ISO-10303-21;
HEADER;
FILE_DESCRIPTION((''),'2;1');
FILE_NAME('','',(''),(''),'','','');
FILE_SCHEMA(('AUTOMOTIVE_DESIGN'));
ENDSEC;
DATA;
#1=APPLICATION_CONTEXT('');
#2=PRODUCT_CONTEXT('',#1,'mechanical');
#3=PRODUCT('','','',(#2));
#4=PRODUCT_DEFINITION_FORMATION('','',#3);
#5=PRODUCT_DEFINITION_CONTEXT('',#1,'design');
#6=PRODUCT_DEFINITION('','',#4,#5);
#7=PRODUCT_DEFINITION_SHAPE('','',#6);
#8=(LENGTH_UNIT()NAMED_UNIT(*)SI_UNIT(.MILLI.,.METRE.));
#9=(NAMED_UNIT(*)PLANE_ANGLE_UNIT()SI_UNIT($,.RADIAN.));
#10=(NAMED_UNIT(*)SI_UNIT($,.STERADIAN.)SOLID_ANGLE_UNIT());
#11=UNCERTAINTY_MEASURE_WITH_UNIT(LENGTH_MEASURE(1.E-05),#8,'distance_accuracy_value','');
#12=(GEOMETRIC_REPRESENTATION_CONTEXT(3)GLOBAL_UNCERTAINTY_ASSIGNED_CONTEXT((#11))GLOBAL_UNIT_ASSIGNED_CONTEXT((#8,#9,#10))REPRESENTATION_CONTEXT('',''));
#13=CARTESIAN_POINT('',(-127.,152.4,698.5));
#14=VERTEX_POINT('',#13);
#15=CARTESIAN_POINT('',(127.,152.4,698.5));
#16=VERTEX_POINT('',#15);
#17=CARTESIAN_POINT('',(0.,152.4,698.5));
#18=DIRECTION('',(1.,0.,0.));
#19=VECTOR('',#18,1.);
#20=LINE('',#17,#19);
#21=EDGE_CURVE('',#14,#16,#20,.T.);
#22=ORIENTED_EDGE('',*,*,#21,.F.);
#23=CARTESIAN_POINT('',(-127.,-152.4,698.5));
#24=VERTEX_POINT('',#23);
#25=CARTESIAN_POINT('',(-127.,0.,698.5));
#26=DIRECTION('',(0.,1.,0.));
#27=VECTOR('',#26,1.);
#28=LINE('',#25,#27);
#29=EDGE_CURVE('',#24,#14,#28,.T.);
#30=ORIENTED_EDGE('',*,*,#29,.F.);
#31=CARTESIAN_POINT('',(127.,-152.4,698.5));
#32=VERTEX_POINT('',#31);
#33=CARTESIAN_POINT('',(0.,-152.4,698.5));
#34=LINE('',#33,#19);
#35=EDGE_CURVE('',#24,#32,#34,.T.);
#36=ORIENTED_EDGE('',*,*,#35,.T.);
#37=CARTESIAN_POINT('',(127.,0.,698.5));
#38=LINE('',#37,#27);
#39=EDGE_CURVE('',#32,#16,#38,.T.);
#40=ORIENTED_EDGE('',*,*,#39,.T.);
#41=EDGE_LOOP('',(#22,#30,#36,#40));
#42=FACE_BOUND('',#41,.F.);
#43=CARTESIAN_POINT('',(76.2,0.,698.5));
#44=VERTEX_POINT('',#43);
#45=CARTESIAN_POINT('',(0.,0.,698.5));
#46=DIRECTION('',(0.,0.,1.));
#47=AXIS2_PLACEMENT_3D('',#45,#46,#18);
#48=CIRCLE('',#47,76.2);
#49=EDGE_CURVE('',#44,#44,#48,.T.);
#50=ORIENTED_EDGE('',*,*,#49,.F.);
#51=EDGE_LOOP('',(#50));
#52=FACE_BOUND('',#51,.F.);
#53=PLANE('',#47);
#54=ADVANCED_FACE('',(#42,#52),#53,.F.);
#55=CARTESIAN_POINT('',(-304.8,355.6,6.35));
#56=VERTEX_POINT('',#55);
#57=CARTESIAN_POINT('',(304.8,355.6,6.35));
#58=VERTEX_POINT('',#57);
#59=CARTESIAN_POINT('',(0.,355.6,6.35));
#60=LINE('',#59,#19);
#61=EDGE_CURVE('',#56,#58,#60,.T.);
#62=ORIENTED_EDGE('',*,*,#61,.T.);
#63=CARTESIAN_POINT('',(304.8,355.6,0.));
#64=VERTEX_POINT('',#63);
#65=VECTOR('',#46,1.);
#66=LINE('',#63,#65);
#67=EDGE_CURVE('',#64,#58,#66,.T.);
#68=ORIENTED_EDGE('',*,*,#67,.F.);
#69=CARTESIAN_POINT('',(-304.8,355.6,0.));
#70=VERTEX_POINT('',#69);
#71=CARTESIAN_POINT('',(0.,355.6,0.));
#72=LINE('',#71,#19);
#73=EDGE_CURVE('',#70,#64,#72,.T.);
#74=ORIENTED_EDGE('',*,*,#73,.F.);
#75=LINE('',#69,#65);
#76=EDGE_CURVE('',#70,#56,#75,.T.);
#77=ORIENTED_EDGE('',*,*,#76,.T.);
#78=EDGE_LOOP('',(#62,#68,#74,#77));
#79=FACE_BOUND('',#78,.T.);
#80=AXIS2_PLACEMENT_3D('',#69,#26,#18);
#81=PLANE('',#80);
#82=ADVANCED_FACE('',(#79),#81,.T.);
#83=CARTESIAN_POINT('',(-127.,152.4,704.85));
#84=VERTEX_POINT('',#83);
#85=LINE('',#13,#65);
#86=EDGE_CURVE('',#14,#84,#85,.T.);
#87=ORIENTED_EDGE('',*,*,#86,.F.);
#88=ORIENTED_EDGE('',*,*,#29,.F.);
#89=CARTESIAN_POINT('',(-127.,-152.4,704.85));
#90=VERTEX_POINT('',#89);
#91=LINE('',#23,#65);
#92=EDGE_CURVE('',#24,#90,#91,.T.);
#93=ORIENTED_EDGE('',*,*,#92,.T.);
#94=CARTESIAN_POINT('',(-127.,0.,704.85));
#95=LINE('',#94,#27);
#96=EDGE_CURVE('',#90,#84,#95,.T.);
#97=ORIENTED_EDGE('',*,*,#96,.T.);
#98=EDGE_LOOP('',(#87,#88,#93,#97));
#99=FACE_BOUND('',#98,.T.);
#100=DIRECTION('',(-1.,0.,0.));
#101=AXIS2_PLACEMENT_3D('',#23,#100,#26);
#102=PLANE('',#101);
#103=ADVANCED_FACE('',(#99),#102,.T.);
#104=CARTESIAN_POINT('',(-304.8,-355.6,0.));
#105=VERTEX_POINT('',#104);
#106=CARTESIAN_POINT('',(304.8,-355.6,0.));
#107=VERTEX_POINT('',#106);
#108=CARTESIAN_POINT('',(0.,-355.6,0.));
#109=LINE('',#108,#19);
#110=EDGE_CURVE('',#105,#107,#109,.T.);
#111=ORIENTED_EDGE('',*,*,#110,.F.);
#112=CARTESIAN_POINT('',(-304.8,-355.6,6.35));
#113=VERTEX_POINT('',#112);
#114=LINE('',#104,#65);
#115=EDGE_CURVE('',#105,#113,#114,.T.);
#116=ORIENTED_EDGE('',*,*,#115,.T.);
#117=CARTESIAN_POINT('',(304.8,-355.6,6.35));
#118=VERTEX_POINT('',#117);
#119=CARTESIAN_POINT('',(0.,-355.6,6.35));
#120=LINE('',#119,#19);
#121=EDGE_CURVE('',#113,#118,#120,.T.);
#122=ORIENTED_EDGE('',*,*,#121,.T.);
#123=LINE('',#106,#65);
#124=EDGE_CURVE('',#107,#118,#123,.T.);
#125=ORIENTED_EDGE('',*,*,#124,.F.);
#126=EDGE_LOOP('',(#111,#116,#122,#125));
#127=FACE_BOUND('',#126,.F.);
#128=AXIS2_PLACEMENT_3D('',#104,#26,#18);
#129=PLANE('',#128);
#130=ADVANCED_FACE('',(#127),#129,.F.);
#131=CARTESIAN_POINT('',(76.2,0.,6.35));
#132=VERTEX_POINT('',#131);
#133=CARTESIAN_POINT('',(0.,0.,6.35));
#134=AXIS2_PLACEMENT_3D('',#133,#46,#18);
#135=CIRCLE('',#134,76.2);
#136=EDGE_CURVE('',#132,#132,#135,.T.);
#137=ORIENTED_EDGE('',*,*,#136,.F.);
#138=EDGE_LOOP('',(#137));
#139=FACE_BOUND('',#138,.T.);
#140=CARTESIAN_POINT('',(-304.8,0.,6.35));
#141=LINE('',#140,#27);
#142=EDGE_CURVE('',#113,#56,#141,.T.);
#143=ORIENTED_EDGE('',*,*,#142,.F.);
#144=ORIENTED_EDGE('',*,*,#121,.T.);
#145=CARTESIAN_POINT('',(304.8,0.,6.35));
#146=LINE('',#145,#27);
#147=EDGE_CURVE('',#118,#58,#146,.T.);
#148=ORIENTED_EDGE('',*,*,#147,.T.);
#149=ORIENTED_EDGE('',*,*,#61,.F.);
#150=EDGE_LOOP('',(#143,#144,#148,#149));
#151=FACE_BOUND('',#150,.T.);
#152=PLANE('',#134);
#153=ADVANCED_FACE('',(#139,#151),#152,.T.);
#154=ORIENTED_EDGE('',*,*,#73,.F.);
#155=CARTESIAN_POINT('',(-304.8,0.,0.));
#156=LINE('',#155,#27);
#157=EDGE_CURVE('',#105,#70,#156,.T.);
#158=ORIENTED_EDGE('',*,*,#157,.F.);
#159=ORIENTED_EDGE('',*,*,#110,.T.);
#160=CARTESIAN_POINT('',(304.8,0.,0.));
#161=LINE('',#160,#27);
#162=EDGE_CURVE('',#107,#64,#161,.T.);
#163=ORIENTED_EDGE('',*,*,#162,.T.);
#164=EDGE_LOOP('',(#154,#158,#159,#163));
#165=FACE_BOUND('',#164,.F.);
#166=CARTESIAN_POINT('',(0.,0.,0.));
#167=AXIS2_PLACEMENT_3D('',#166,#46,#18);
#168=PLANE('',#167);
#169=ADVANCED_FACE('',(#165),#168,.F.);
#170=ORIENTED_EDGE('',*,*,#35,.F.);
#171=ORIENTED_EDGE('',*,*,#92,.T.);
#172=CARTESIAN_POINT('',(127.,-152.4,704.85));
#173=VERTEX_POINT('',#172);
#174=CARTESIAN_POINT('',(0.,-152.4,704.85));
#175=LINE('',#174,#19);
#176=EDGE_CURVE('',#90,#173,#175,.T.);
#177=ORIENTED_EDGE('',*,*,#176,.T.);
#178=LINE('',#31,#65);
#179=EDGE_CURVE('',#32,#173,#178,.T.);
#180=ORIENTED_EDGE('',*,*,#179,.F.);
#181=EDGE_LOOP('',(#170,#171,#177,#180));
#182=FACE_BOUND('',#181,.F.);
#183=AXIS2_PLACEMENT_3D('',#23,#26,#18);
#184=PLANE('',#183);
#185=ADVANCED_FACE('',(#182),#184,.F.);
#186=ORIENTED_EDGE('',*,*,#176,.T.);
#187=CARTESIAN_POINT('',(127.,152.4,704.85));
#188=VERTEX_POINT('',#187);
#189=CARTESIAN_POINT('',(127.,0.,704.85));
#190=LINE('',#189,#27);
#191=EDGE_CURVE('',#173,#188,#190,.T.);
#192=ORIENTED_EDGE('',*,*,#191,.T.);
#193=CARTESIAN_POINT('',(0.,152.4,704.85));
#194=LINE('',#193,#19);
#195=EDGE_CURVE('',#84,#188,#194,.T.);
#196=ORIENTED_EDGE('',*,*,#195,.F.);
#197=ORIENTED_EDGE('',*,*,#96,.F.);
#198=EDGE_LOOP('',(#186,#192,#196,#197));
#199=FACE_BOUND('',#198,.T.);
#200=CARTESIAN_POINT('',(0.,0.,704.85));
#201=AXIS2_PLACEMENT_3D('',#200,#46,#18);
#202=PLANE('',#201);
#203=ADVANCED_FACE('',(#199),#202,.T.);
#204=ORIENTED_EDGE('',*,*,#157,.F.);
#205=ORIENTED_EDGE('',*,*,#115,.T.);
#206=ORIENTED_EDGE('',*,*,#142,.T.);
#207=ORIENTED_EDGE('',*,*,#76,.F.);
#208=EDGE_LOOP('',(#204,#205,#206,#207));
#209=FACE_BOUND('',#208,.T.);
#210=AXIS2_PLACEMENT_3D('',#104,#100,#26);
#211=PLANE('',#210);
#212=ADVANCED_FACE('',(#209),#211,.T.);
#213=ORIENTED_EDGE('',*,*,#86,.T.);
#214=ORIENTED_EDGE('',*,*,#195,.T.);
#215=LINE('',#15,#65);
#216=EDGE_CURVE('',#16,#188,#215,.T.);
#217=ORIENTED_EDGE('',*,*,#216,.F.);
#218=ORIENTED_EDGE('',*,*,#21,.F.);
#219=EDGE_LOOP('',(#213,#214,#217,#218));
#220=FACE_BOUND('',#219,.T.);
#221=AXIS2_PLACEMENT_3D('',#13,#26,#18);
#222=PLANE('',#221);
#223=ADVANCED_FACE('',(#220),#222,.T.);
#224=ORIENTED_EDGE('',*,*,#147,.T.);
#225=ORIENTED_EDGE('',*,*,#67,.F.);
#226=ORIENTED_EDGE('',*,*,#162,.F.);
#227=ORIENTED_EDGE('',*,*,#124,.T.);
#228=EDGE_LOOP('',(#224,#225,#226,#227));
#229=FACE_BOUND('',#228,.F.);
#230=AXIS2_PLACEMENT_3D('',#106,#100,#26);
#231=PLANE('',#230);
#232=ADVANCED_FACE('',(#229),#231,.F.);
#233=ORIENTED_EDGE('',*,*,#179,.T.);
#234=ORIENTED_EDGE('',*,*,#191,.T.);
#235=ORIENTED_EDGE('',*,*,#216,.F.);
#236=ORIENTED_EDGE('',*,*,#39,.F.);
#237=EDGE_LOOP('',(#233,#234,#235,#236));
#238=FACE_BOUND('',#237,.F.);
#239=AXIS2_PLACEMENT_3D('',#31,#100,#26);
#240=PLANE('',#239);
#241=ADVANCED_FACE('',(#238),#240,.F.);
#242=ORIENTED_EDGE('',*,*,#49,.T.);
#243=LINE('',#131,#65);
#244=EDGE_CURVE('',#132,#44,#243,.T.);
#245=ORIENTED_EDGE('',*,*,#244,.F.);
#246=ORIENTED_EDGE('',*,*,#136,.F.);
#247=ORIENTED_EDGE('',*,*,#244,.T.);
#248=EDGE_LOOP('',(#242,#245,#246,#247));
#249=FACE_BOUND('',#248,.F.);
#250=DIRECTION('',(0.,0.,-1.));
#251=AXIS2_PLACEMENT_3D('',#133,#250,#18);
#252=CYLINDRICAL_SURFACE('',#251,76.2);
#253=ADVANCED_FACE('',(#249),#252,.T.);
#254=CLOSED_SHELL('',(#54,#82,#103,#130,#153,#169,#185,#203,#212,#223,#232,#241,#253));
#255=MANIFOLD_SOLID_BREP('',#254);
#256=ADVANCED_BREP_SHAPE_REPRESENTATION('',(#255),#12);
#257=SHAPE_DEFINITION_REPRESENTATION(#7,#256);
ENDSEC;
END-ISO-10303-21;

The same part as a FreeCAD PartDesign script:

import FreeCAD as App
import Part
import Sketcher
from FreeCAD import Vector
Q = App.Units.Quantity


def add_polygon(sketch, points):
    """Adds a closed chain of lines whose ends are joined by coincident constraints."""
    first, n = sketch.GeometryCount, len(points)
    for a, b in zip(points, points[1:] + points[:1]):
        sketch.addGeometry(Part.LineSegment(App.Vector(*a, 0), App.Vector(*b, 0)), False)
    for i in range(n):
        sketch.addConstraint(Sketcher.Constraint("Coincident", first + i, 2, first + (i + 1) % n, 1))

doc = App.newDocument("Part")
body = doc.addObject("PartDesign::Body", "Body")

# Sketch on XY plane
sketch1 = body.newObject("Sketcher::SketchObject", "Sketch")
sketch1.AttachmentSupport = (doc.getObject("XY_Plane"), [""])
sketch1.MapMode = "FlatFace"
add_polygon(sketch1, [(-305, 356), (-305, -356), (305, -356), (305, 356)])  # lines 0-3
sketch1.addConstraint([
    Sketcher.Constraint("Vertical", 0),
    Sketcher.Constraint("Horizontal", 1),
    Sketcher.Constraint("Vertical", 2),
    Sketcher.Constraint("Horizontal", 3),
    Sketcher.Constraint("Symmetric", 0, 2, 2, 2, -1, 1),
    Sketcher.Constraint("DistanceX", 1, 1, 1, 2, Q("24 in")),
    Sketcher.Constraint("DistanceY", 0, 2, 0, 1, Q("28 in")),
])
pad1 = body.newObject("PartDesign::Pad", "Pad")
pad1.Profile = sketch1
pad1.Length = Q("0.25 in")

# Sketch on XY plane
sketch2 = body.newObject("Sketcher::SketchObject", "Sketch001")
sketch2.AttachmentSupport = (doc.getObject("XY_Plane"), [""])
sketch2.MapMode = "FlatFace"
sketch2.AttachmentOffset = App.Placement(Vector(0, 0, 0.25 * 25.4), App.Rotation())
sketch2.addGeometry(Part.Circle(Vector(0, 0, 0), Vector(0, 0, 1), 76), False)
sketch2.addConstraint([
    Sketcher.Constraint("Coincident", 0, 3, -1, 1),
    Sketcher.Constraint("Diameter", 0, Q("6 in")),
])
pad2 = body.newObject("PartDesign::Pad", "Pad001")
pad2.Profile = sketch2
pad2.Length = Q("27.25 in")

# Sketch on XY plane
sketch3 = body.newObject("Sketcher::SketchObject", "Sketch002")
sketch3.AttachmentSupport = (doc.getObject("XY_Plane"), [""])
sketch3.MapMode = "FlatFace"
sketch3.AttachmentOffset = App.Placement(Vector(0, 0, 27.5 * 25.4), App.Rotation())
add_polygon(sketch3, [(-127, 152), (-127, -152), (127, -152), (127, 152)])  # lines 0-3
sketch3.addConstraint([
    Sketcher.Constraint("Vertical", 0),
    Sketcher.Constraint("Horizontal", 1),
    Sketcher.Constraint("Vertical", 2),
    Sketcher.Constraint("Horizontal", 3),
    Sketcher.Constraint("Symmetric", 0, 2, 2, 2, -1, 1),
    Sketcher.Constraint("DistanceX", 1, 1, 1, 2, Q("10 in")),
    Sketcher.Constraint("DistanceY", 0, 2, 0, 1, Q("12 in")),
])
pad3 = body.newObject("PartDesign::Pad", "Pad002")
pad3.Profile = sketch3
pad3.Length = Q("0.25 in")

doc.recompute()
